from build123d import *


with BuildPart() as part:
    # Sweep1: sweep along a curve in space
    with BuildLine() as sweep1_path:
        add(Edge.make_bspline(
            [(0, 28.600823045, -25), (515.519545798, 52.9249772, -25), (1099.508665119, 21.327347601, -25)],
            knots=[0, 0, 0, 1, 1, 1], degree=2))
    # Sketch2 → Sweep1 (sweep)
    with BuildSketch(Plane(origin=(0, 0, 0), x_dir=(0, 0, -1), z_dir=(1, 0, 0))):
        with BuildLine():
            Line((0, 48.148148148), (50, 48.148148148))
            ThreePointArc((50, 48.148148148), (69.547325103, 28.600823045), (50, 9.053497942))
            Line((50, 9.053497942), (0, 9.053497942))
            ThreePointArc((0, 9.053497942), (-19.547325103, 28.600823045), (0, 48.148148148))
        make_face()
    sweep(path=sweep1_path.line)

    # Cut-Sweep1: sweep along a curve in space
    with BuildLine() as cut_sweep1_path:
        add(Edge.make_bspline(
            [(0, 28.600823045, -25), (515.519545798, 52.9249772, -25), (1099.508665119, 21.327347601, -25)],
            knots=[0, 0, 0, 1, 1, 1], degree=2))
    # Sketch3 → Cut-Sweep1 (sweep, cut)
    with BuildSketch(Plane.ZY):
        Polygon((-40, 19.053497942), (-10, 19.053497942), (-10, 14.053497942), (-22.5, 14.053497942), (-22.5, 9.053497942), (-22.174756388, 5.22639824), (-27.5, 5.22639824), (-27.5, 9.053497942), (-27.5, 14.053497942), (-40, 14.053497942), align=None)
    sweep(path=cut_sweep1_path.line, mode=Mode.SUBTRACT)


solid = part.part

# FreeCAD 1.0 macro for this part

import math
import FreeCAD as App
import Part
import Sketcher

V = App.Vector


def add_polygon(sketch, points):
    """Adds a closed chain of lines whose ends are joined by coincident constraints."""
    first, n = sketch.GeometryCount, len(points)
    for a, b in zip(points, points[1:] + points[:1]):
        sketch.addGeometry(Part.LineSegment(App.Vector(*a, 0), App.Vector(*b, 0)), False)
    for i in range(n):
        sketch.addConstraint(Sketcher.Constraint("Coincident", first + i, 2, first + (i + 1) % n, 1))

doc = App.newDocument("Part")
body = doc.addObject("PartDesign::Body", "Body")

# Sketch on YZ plane
sketch1 = body.newObject("Sketcher::SketchObject", "Sketch")
sketch1.AttachmentSupport = (doc.getObject("YZ_Plane"), [""])
sketch1.MapMode = "FlatFace"
sketch1.addGeometry([
    Part.LineSegment(V(48, -50, 0), V(48, 0, 0)),
    Part.ArcOfCircle(Part.Circle(V(29, 0, 0), V(0, 0, 1), 20), math.radians(0), math.radians(180)),
    Part.LineSegment(V(9, 0, 0), V(9, -50, 0)),
    Part.ArcOfCircle(Part.Circle(V(29, -50, 0), V(0, 0, 1), 20), math.radians(180), math.radians(360)),
], False)
sketch1.addConstraint([
    Sketcher.Constraint("Tangent", 0, 2, 1, 1),
    Sketcher.Constraint("Tangent", 1, 2, 2, 1),
    Sketcher.Constraint("Tangent", 2, 2, 3, 1),
    Sketcher.Constraint("Tangent", 3, 2, 0, 1),
    Sketcher.Constraint("Vertical", 0),
    Sketcher.Constraint("Vertical", 2),
    Sketcher.Constraint("PointOnObject", 1, 3, -1),
    Sketcher.Constraint("DistanceY", 0, 1, 0, 2, 50.0),
    Sketcher.Constraint("Radius", 1, 19.547325),
    Sketcher.Constraint("DistanceX", -1, 1, 0, 2, 48.148148),
])

# Sketch on XY plane
sketch2 = body.newObject("Sketcher::SketchObject", "Sketch001")
sketch2.AttachmentSupport = (doc.getObject("XY_Plane"), [""])
sketch2.MapMode = "FlatFace"
sketch2.AttachmentOffset = App.Placement(V(0, 0, -25), App.Rotation())
sketch2.addGeometry(Part.BSplineCurve([V(0, 28.600823, 0), V(515.519546, 52.924977, 0), V(1099.508665, 21.327348, 0)], [3, 3], [0, 1], False, 2, [1, 1, 1], False), False)
sketch2.addConstraint(Sketcher.Constraint("Block", 0))
doc.recompute()

additivepipe = body.newObject("PartDesign::AdditivePipe", "AdditivePipe")
additivepipe.Profile = sketch1
additivepipe.Spine = (sketch2, ["Edge1"])

# Sketch on YZ plane
sketch3 = body.newObject("Sketcher::SketchObject", "Sketch002")
sketch3.AttachmentSupport = (doc.getObject("YZ_Plane"), [""])
sketch3.MapMode = "FlatFace"
add_polygon(sketch3, [(19.1, -10), (19.1, -40), (14.1, -40), (14.1, -27.5), (5.2, -27.5), (5.2, -22.2), (9.1, -22.5), (14.1, -22.5), (14.1, -10)])  # lines 0-8
sketch3.addConstraint([
    Sketcher.Constraint("Vertical", 0),
    Sketcher.Constraint("Horizontal", 1),
    Sketcher.Constraint("Vertical", 2),
    Sketcher.Constraint("Horizontal", 3),
    Sketcher.Constraint("Vertical", 4),
    Sketcher.Constraint("Horizontal", 6),
    Sketcher.Constraint("Vertical", 7),
    Sketcher.Constraint("Horizontal", 8),
    Sketcher.Constraint("Vertical", 2, 2, 6, 2),
    Sketcher.Constraint("Equal", 1, 6),
    Sketcher.Constraint("Equal", 2, 7),
    Sketcher.Constraint("DistanceX", 1, 2, 1, 1, 5.0),
    Sketcher.Constraint("DistanceY", 0, 2, 0, 1, 30.0),
    Sketcher.Constraint("DistanceY", 2, 1, 2, 2, 12.5),
    Sketcher.Constraint("DistanceY", 0, 2, -1, 1, 40.0),
    Sketcher.Constraint("DistanceX", 3, 2, 3, 1, 8.8271),
    Sketcher.Constraint("DistanceX", -1, 1, 3, 2, 5.226398),
    Sketcher.Constraint("DistanceY", 4, 1, 4, 2, 5.325244),
])

# Sketch on XY plane
sketch4 = body.newObject("Sketcher::SketchObject", "Sketch003")
sketch4.AttachmentSupport = (doc.getObject("XY_Plane"), [""])
sketch4.MapMode = "FlatFace"
sketch4.AttachmentOffset = App.Placement(V(0, 0, -25), App.Rotation())
sketch4.addGeometry(Part.BSplineCurve([V(0, 28.600823, 0), V(515.519546, 52.924977, 0), V(1099.508665, 21.327348, 0)], [3, 3], [0, 1], False, 2, [1, 1, 1], False), False)
sketch4.addConstraint(Sketcher.Constraint("Block", 0))
doc.recompute()

subtractivepipe = body.newObject("PartDesign::SubtractivePipe", "SubtractivePipe")
subtractivepipe.Profile = sketch3
subtractivepipe.Spine = (sketch4, ["Edge1"])

doc.recompute()
